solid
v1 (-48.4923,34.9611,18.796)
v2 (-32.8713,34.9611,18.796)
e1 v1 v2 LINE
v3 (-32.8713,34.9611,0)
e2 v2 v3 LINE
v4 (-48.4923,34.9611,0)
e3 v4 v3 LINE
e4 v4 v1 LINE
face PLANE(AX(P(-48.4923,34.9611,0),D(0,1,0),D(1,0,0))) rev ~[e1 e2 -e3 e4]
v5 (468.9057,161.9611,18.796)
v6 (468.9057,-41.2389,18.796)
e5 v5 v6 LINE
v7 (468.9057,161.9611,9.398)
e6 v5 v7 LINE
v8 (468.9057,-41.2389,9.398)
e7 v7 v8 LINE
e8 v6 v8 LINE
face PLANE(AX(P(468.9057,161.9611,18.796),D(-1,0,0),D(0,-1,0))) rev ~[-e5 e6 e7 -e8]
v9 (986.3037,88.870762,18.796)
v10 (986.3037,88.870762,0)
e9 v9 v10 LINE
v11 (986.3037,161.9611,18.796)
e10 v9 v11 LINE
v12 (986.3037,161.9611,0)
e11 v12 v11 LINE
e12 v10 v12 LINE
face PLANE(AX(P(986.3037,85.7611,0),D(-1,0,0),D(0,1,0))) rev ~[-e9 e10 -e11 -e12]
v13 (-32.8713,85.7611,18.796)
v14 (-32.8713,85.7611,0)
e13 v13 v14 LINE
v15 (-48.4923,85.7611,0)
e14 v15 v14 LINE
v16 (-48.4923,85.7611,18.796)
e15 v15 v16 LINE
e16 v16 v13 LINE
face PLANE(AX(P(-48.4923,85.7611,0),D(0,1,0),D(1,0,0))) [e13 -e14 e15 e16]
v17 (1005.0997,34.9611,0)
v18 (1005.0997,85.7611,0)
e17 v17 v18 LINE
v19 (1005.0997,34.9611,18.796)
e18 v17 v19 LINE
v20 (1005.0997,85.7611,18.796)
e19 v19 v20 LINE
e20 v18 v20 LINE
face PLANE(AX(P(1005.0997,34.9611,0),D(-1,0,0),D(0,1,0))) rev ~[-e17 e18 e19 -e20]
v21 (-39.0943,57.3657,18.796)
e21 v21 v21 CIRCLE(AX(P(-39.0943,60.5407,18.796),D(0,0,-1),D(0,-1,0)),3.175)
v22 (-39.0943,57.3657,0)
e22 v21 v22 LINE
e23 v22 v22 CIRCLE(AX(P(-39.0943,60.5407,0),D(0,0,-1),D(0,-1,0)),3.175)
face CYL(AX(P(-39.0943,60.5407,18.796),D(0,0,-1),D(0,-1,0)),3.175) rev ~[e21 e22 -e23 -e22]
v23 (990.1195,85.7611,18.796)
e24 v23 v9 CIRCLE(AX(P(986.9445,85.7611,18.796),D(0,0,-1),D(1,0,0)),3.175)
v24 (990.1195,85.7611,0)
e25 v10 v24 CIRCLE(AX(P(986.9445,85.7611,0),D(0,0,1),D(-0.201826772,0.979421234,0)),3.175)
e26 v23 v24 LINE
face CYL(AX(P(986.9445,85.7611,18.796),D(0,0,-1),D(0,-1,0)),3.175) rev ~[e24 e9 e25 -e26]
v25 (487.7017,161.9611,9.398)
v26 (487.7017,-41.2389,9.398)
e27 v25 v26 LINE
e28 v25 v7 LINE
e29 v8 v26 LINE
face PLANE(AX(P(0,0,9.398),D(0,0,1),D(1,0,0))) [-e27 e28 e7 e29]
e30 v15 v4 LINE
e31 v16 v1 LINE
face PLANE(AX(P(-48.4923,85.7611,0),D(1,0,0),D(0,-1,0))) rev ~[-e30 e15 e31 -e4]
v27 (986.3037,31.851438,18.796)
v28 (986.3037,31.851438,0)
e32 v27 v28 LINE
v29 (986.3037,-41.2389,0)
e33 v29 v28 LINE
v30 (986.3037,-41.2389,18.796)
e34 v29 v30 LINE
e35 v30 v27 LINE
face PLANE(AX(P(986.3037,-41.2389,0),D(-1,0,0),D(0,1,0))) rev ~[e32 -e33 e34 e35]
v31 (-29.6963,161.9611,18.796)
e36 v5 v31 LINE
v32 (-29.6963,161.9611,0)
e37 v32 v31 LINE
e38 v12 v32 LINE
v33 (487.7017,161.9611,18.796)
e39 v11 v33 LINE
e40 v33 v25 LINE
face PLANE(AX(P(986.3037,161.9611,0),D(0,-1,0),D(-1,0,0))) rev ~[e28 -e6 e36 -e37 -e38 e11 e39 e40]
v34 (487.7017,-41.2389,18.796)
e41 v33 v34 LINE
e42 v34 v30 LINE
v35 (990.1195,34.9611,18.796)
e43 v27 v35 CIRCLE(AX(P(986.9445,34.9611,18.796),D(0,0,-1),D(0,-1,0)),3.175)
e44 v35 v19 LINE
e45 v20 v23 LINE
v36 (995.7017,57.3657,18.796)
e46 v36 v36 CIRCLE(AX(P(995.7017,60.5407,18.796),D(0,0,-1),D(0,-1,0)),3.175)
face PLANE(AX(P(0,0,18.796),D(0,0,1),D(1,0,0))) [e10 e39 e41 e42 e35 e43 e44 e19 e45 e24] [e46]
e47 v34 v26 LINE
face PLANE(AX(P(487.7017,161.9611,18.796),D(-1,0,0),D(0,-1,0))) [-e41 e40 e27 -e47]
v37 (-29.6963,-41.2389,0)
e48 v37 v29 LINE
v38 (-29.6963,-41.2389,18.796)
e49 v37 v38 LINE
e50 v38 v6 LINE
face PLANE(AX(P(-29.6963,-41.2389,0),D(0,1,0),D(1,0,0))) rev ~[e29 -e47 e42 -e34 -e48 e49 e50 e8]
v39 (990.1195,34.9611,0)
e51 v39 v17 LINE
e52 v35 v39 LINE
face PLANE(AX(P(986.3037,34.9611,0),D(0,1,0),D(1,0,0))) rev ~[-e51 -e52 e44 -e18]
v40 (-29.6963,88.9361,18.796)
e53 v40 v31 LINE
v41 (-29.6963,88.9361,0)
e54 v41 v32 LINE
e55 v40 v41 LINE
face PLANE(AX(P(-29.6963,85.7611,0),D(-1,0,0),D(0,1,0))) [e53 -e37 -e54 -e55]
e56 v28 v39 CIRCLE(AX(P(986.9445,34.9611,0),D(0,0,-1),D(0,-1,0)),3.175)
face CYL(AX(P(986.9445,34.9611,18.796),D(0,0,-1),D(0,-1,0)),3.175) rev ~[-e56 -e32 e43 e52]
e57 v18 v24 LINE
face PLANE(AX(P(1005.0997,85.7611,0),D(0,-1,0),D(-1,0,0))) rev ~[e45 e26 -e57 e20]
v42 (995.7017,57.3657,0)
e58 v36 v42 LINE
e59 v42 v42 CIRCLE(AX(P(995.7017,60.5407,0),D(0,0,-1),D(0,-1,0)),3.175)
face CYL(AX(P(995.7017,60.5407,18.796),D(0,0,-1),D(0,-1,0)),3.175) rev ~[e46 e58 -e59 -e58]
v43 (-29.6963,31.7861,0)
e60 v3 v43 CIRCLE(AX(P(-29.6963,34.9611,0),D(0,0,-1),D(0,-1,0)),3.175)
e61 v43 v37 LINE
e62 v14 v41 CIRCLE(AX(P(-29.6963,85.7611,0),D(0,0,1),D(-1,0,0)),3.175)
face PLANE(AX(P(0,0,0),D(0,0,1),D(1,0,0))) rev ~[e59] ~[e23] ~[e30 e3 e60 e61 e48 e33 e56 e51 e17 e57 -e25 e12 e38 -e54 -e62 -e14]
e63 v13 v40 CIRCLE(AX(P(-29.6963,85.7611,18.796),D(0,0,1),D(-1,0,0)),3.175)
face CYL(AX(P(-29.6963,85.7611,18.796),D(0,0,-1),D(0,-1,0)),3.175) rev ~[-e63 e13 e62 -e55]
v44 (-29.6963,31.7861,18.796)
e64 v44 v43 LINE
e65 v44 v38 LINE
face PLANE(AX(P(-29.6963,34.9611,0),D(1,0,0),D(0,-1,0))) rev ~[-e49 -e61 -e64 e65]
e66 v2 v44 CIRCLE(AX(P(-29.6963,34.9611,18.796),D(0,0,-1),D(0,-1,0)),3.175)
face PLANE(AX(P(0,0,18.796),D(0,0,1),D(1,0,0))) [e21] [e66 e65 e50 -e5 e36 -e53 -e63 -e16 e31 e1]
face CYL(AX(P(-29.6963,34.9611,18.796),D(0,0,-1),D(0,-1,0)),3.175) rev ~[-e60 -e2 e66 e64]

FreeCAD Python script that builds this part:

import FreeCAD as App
import Part
import Sketcher

V = App.Vector
Q = App.Units.Quantity


def add_polygon(sketch, points):
    """Adds a closed chain of lines whose ends are joined by coincident constraints."""
    first, n = sketch.GeometryCount, len(points)
    for a, b in zip(points, points[1:] + points[:1]):
        sketch.addGeometry(Part.LineSegment(App.Vector(*a, 0), App.Vector(*b, 0)), False)
    for i in range(n):
        sketch.addConstraint(Sketcher.Constraint("Coincident", first + i, 2, first + (i + 1) % n, 1))

doc = App.newDocument("Part")
body = doc.addObject("PartDesign::Body", "Body")

# Sketch on XY plane
sketch1 = body.newObject("Sketcher::SketchObject", "Sketch")
sketch1.AttachmentSupport = (doc.getObject("XY_Plane"), [""])
sketch1.MapMode = "FlatFace"
add_polygon(sketch1, [(-29.6963, 85.7611), (-48.4923, 85.7611), (-48.4923, 34.9611), (-29.6963, 34.9611), (-29.6963, -41.2389), (986.3037, -41.2389), (986.3037, 34.9611), (1005.0997, 34.9611), (1005.0997, 85.7611), (986.3037, 85.7611), (986.3037, 161.9611), (-29.6963, 161.9611)])  # lines 0-11
sketch1.addConstraint(Sketcher.Constraint("Horizontal", 0))
sketch1.addConstraint(Sketcher.Constraint("Vertical", 1))
sketch1.addConstraint(Sketcher.Constraint("Horizontal", 2))
sketch1.addConstraint(Sketcher.Constraint("Vertical", 3))
sketch1.addConstraint(Sketcher.Constraint("Horizontal", 4))
sketch1.addConstraint(Sketcher.Constraint("Vertical", 5))
sketch1.addConstraint(Sketcher.Constraint("Horizontal", 6))
sketch1.addConstraint(Sketcher.Constraint("Vertical", 7))
sketch1.addConstraint(Sketcher.Constraint("Horizontal", 8))
sketch1.addConstraint(Sketcher.Constraint("Vertical", 9))
sketch1.addConstraint(Sketcher.Constraint("Horizontal", 10))
sketch1.addConstraint(Sketcher.Constraint("Vertical", 11))
sketch1.addConstraint(Sketcher.Constraint("Horizontal", 2, 2, 5, 2))
sketch1.addConstraint(Sketcher.Constraint("Horizontal", 0, 2, 7, 2))
sketch1.addConstraint(Sketcher.Constraint("Vertical", 5, 2, 8, 2))
sketch1.addConstraint(Sketcher.Constraint("Vertical", 3, 2, 10, 2))
sketch1.addConstraint(Sketcher.Constraint("Equal", 2, 6))
sketch1.addConstraint(Sketcher.Constraint("Equal", 5, 9))
sketch1.addConstraint(Sketcher.Constraint("DistanceX", 4, 1, 4, 2, Q("40 in")))
sketch1.addConstraint(Sketcher.Constraint("DistanceY", 1, 2, 1, 1, Q("2 in")))
sketch1.addConstraint(Sketcher.Constraint("DistanceY", 3, 2, 3, 1, Q("3 in")))
sketch1.addConstraint(Sketcher.Constraint("DistanceX", 0, 2, 0, 1, Q("0.74 in")))
sketch1.addConstraint(Sketcher.Constraint("DistanceX", 0, 2, -1, 1, Q("48.4923 mm")))
sketch1.addConstraint(Sketcher.Constraint("DistanceY", -1, 1, 0, 2, Q("85.761 mm")))
pad1 = body.newObject("PartDesign::Pad", "Pad")
pad1.Profile = sketch1
pad1.Length = Q("0.74 in")

# Sketch on XY plane
sketch2 = body.newObject("Sketcher::SketchObject", "Sketch001")
sketch2.AttachmentSupport = (doc.getObject("XY_Plane"), [""])
sketch2.MapMode = "FlatFace"
sketch2.AttachmentOffset = App.Placement(V(0, 0, 0.74 * 25.4), App.Rotation())
sketch2.addGeometry(Part.Circle(V(-29.6963, 85.7611, 0), V(0, 0, 1), 3.175), False)
sketch2.addGeometry(Part.Circle(V(-29.6963, 34.9611, 0), V(0, 0, 1), 3.175), False)
sketch2.addGeometry(Part.Circle(V(-39.0943, 60.5407, 0), V(0, 0, 1), 3.175), False)
sketch2.addGeometry(Part.Circle(V(986.9445, 85.7611, 0), V(0, 0, 1), 3.175), False)
sketch2.addGeometry(Part.Circle(V(986.9445, 34.9611, 0), V(0, 0, 1), 3.175), False)
sketch2.addGeometry(Part.Circle(V(995.7017, 60.5407, 0), V(0, 0, 1), 3.175), False)
sketch2.addConstraint(Sketcher.Constraint("Equal", 0, 1))
sketch2.addConstraint(Sketcher.Constraint("Equal", 1, 2))
sketch2.addConstraint(Sketcher.Constraint("Equal", 2, 3))
sketch2.addConstraint(Sketcher.Constraint("Equal", 3, 4))
sketch2.addConstraint(Sketcher.Constraint("Equal", 4, 5))
sketch2.addConstraint(Sketcher.Constraint("Horizontal", 0, 3, 3, 3))
sketch2.addConstraint(Sketcher.Constraint("Horizontal", 1, 3, 4, 3))
sketch2.addConstraint(Sketcher.Constraint("Horizontal", 2, 3, 5, 3))
sketch2.addConstraint(Sketcher.Constraint("Vertical", 0, 3, 1, 3))
sketch2.addConstraint(Sketcher.Constraint("Vertical", 3, 3, 4, 3))
sketch2.addConstraint(Sketcher.Constraint("Diameter", 0, Q("0.25 in")))
sketch2.addConstraint(Sketcher.Constraint("DistanceY", 1, 3, 0, 3, Q("2 in")))
sketch2.addConstraint(Sketcher.Constraint("DistanceX", 2, 3, 0, 3, Q("0.37 in")))
sketch2.addConstraint(Sketcher.Constraint("DistanceX", 0, 3, 5, 3, Q("40.37 in")))
sketch2.addConstraint(Sketcher.Constraint("DistanceY", -1, 1, 2, 3, Q("2.3835 in")))
sketch2.addConstraint(Sketcher.Constraint("DistanceX", 0, 3, -1, 1, Q("29.6963 mm")))
sketch2.addConstraint(Sketcher.Constraint("DistanceY", -1, 1, 0, 3, Q("85.761 mm")))
sketch2.addConstraint(Sketcher.Constraint("DistanceX", -1, 1, 3, 3, Q("986.9445 mm")))
doc.recompute()
hole = body.newObject("PartDesign::Hole", "Hole")
hole.Profile = sketch2
hole.ThreadType = "None"
hole.Diameter = Q("0.25 in")
hole.DepthType = "ThroughAll"

# Sketch on XY plane
sketch3 = body.newObject("Sketcher::SketchObject", "Sketch002")
sketch3.AttachmentSupport = (doc.getObject("XY_Plane"), [""])
sketch3.MapMode = "FlatFace"
sketch3.AttachmentOffset = App.Placement(V(0, 0, 0.74 * 25.4), App.Rotation())
add_polygon(sketch3, [(487.7017, -41.2389), (487.7017, 161.9611), (468.9057, 161.9611), (468.9057, -41.2389)])  # lines 0-3
sketch3.addConstraint(Sketcher.Constraint("Vertical", 0))
sketch3.addConstraint(Sketcher.Constraint("Horizontal", 1))
sketch3.addConstraint(Sketcher.Constraint("Vertical", 2))
sketch3.addConstraint(Sketcher.Constraint("Horizontal", 3))
sketch3.addConstraint(Sketcher.Constraint("DistanceY", 0, 1, 0, 2, Q("8 in")))
sketch3.addConstraint(Sketcher.Constraint("DistanceX", 1, 2, 1, 1, Q("0.74 in")))
sketch3.addConstraint(Sketcher.Constraint("DistanceX", -1, 1, 0, 2, Q("487.7017 mm")))
sketch3.addConstraint(Sketcher.Constraint("DistanceY", -1, 1, 0, 2, Q("161.961 mm")))
pocket1 = body.newObject("PartDesign::Pocket", "Pocket")
pocket1.Profile = sketch3
pocket1.Length = Q("0.37 in")

doc.recompute()
